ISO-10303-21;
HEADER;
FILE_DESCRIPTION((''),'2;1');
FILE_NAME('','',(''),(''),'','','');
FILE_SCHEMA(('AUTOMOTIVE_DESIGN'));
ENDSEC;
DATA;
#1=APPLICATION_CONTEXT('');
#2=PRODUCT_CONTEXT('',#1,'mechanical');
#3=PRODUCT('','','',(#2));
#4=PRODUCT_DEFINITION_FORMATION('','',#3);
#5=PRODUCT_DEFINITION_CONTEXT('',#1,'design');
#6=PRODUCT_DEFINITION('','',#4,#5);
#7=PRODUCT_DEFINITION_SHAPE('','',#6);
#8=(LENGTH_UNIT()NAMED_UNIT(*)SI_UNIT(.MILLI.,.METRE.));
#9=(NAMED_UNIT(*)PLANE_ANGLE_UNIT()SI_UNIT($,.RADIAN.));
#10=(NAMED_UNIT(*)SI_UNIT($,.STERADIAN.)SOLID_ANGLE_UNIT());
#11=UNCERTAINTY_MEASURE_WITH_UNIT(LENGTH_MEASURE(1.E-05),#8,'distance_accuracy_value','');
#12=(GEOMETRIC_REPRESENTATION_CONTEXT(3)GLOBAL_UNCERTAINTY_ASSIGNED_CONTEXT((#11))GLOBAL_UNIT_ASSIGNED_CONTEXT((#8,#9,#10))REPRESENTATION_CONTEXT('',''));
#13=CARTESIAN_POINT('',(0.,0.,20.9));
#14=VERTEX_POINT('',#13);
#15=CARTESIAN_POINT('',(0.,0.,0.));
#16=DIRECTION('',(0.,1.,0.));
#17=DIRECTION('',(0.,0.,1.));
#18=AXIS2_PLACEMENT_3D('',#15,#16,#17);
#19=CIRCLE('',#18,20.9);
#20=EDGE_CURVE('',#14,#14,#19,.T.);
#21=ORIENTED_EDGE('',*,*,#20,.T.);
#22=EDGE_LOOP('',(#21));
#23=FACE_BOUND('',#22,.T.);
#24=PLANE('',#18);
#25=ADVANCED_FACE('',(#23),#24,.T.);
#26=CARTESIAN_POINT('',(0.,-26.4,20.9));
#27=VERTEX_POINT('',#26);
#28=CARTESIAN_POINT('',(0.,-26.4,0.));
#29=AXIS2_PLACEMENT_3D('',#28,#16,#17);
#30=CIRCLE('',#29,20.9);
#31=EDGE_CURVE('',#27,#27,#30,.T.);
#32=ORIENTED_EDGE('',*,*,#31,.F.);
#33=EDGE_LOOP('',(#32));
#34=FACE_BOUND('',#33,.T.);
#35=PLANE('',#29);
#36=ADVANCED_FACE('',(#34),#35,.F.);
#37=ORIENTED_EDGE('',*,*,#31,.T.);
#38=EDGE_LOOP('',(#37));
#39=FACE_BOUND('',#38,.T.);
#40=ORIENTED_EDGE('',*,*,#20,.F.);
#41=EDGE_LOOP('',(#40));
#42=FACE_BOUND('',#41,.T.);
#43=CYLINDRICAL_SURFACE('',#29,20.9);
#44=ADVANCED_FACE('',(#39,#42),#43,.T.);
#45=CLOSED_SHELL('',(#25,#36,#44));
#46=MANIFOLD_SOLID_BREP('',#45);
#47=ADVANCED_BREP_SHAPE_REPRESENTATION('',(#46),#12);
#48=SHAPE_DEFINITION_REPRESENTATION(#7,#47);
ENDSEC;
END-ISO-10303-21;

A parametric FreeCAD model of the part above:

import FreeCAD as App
import Part
import Sketcher
from FreeCAD import Vector

doc = App.newDocument("Part")
params = doc.addObject("Spreadsheet::Sheet", "Params")
for row, (alias, value) in enumerate([
    ("sketch1_diameter", "41.8 mm"),
    ("pad1_length", "26.4 mm"),
], start=1):
    params.set(f"A{row}", alias)
    params.set(f"B{row}", "=" + value)
    params.setAlias(f"B{row}", alias)

body = doc.addObject("PartDesign::Body", "Body")

# Sketch on XZ plane
sketch1 = body.newObject("Sketcher::SketchObject", "Sketch")
sketch1.AttachmentSupport = (doc.getObject("XZ_Plane"), [""])
sketch1.MapMode = "FlatFace"
sketch1.addGeometry(Part.Circle(Vector(0, 0, 0), Vector(0, 0, 1), 21), False)
sketch1.addConstraint(Sketcher.Constraint("Coincident", 0, 3, -1, 1))
sketch1.addConstraint(Sketcher.Constraint("Diameter", 0, 41.8))
sketch1.setExpression("Constraints[1]", "Params.sketch1_diameter")
pad1 = body.newObject("PartDesign::Pad", "Pad")
pad1.Profile = sketch1
pad1.setExpression("Length", "Params.pad1_length")

doc.recompute()
